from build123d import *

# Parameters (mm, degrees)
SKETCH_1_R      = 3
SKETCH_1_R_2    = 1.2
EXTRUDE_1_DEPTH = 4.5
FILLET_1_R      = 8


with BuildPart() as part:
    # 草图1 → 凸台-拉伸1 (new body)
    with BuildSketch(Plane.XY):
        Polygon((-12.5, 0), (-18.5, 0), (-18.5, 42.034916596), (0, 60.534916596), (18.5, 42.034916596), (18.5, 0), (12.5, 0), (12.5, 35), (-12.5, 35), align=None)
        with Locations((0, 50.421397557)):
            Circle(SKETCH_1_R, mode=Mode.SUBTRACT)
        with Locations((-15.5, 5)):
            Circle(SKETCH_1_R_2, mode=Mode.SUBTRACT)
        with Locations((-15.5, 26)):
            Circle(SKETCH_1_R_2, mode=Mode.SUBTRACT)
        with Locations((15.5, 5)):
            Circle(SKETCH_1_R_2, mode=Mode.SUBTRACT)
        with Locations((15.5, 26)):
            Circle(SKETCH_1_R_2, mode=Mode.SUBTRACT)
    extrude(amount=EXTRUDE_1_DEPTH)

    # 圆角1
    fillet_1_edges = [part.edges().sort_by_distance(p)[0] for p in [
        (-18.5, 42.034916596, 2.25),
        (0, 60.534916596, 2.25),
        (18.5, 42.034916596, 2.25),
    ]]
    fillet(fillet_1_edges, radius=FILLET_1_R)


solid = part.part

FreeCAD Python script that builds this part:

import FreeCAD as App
import Part
import Sketcher

V = App.Vector


def edges_at(feature, points):
    """Names of the edges that pass closest to the given points."""
    edges = feature.Shape.Edges
    near = lambda p: min(range(len(edges)), key=lambda i: edges[i].distToShape(Part.Vertex(*p))[0])
    return sorted({f"Edge{near(p) + 1}" for p in points})


def add_polygon(sketch, points):
    """Adds a closed chain of lines whose ends are joined by coincident constraints."""
    first, n = sketch.GeometryCount, len(points)
    for a, b in zip(points, points[1:] + points[:1]):
        sketch.addGeometry(Part.LineSegment(App.Vector(*a, 0), App.Vector(*b, 0)), False)
    for i in range(n):
        sketch.addConstraint(Sketcher.Constraint("Coincident", first + i, 2, first + (i + 1) % n, 1))

doc = App.newDocument("Part")
body = doc.addObject("PartDesign::Body", "Body")

sketch1 = body.newObject("Sketcher::SketchObject", "Sketch")
sketch1.AttachmentSupport = (doc.getObject("XY_Plane"), [""])
sketch1.MapMode = "FlatFace"
add_polygon(sketch1, [(-18.5, 0), (-12.5, 0), (-12.5, 35), (12.5, 35), (12.5, 0), (18.5, 0), (18.5, 42.034917), (0, 60.534917), (-18.5, 42.034917)])
sketch1.addGeometry(Part.Circle(V(15.5, 5, 0), V(0, 0, 1), 1.2), False)
sketch1.addGeometry(Part.Circle(V(15.5, 26, 0), V(0, 0, 1), 1.2), False)
sketch1.addGeometry(Part.Circle(V(-15.5, 5, 0), V(0, 0, 1), 1.2), False)
sketch1.addGeometry(Part.Circle(V(-15.5, 26, 0), V(0, 0, 1), 1.2), False)
sketch1.addGeometry(Part.Circle(V(0, 50.421398, 0), V(0, 0, 1), 3), False)
sketch1.addConstraint(Sketcher.Constraint("Horizontal", 0))
sketch1.addConstraint(Sketcher.Constraint("Vertical", 1))
sketch1.addConstraint(Sketcher.Constraint("Horizontal", 2))
sketch1.addConstraint(Sketcher.Constraint("Vertical", 3))
sketch1.addConstraint(Sketcher.Constraint("Horizontal", 4))
sketch1.addConstraint(Sketcher.Constraint("Vertical", 5))
sketch1.addConstraint(Sketcher.Constraint("Vertical", 8))
sketch1.addConstraint(Sketcher.Constraint("Equal", 9, 10))
sketch1.addConstraint(Sketcher.Constraint("Equal", 10, 11))
sketch1.addConstraint(Sketcher.Constraint("Equal", 11, 12))
sketch1.addConstraint(Sketcher.Constraint("Symmetric", 0, 2, 3, 2, -1, 1))
sketch1.addConstraint(Sketcher.Constraint("Symmetric", 9, 3, 11, 3, -2))
sketch1.addConstraint(Sketcher.Constraint("Symmetric", 10, 3, 12, 3, -2))
sketch1.addConstraint(Sketcher.Constraint("Symmetric", 5, 2, 7, 2, -2))
sketch1.addConstraint(Sketcher.Constraint("PointOnObject", 13, 3, -2))
sketch1.addConstraint(Sketcher.Constraint("PointOnObject", 0, 2, -1))
sketch1.addConstraint(Sketcher.Constraint("PointOnObject", 6, 2, -2))
sketch1.addConstraint(Sketcher.Constraint("Perpendicular", 6, 7))
sketch1.addConstraint(Sketcher.Constraint("Vertical", 9, 3, 10, 3))
sketch1.addConstraint(Sketcher.Constraint("Diameter", 13, 6.0))
sketch1.addConstraint(Sketcher.Constraint("Diameter", 9, 2.4))
sketch1.addConstraint(Sketcher.Constraint("DistanceX", 0, 1, 0, 2, 6.0))
sketch1.addConstraint(Sketcher.Constraint("DistanceX", 2, 1, 2, 2, 25.0))
sketch1.addConstraint(Sketcher.Constraint("DistanceY", 1, 1, 1, 2, 35.0))
sketch1.addConstraint(Sketcher.Constraint("DistanceY", -1, 1, 9, 3, 5.0))
sketch1.addConstraint(Sketcher.Constraint("DistanceY", -1, 1, 10, 3, 26.0))
sketch1.addConstraint(Sketcher.Constraint("DistanceX", 11, 3, 9, 3, 31.0))
sketch1.addConstraint(Sketcher.Constraint("DistanceY", 5, 1, 5, 2, 42.034917))
sketch1.addConstraint(Sketcher.Constraint("DistanceY", 5, 2, 13, 3, 8.386481))
pad1 = body.newObject("PartDesign::Pad", "Pad")
pad1.Profile = sketch1
pad1.Length = 4.5
doc.recompute()

fillet = body.newObject("PartDesign::Fillet", "Fillet")
fillet.Base = (pad1, edges_at(pad1, [(-18.5, 42.035, 2.25), (0, 60.535, 2.25), (18.5, 42.035, 2.25)]))
fillet.Radius = 8

doc.recompute()
